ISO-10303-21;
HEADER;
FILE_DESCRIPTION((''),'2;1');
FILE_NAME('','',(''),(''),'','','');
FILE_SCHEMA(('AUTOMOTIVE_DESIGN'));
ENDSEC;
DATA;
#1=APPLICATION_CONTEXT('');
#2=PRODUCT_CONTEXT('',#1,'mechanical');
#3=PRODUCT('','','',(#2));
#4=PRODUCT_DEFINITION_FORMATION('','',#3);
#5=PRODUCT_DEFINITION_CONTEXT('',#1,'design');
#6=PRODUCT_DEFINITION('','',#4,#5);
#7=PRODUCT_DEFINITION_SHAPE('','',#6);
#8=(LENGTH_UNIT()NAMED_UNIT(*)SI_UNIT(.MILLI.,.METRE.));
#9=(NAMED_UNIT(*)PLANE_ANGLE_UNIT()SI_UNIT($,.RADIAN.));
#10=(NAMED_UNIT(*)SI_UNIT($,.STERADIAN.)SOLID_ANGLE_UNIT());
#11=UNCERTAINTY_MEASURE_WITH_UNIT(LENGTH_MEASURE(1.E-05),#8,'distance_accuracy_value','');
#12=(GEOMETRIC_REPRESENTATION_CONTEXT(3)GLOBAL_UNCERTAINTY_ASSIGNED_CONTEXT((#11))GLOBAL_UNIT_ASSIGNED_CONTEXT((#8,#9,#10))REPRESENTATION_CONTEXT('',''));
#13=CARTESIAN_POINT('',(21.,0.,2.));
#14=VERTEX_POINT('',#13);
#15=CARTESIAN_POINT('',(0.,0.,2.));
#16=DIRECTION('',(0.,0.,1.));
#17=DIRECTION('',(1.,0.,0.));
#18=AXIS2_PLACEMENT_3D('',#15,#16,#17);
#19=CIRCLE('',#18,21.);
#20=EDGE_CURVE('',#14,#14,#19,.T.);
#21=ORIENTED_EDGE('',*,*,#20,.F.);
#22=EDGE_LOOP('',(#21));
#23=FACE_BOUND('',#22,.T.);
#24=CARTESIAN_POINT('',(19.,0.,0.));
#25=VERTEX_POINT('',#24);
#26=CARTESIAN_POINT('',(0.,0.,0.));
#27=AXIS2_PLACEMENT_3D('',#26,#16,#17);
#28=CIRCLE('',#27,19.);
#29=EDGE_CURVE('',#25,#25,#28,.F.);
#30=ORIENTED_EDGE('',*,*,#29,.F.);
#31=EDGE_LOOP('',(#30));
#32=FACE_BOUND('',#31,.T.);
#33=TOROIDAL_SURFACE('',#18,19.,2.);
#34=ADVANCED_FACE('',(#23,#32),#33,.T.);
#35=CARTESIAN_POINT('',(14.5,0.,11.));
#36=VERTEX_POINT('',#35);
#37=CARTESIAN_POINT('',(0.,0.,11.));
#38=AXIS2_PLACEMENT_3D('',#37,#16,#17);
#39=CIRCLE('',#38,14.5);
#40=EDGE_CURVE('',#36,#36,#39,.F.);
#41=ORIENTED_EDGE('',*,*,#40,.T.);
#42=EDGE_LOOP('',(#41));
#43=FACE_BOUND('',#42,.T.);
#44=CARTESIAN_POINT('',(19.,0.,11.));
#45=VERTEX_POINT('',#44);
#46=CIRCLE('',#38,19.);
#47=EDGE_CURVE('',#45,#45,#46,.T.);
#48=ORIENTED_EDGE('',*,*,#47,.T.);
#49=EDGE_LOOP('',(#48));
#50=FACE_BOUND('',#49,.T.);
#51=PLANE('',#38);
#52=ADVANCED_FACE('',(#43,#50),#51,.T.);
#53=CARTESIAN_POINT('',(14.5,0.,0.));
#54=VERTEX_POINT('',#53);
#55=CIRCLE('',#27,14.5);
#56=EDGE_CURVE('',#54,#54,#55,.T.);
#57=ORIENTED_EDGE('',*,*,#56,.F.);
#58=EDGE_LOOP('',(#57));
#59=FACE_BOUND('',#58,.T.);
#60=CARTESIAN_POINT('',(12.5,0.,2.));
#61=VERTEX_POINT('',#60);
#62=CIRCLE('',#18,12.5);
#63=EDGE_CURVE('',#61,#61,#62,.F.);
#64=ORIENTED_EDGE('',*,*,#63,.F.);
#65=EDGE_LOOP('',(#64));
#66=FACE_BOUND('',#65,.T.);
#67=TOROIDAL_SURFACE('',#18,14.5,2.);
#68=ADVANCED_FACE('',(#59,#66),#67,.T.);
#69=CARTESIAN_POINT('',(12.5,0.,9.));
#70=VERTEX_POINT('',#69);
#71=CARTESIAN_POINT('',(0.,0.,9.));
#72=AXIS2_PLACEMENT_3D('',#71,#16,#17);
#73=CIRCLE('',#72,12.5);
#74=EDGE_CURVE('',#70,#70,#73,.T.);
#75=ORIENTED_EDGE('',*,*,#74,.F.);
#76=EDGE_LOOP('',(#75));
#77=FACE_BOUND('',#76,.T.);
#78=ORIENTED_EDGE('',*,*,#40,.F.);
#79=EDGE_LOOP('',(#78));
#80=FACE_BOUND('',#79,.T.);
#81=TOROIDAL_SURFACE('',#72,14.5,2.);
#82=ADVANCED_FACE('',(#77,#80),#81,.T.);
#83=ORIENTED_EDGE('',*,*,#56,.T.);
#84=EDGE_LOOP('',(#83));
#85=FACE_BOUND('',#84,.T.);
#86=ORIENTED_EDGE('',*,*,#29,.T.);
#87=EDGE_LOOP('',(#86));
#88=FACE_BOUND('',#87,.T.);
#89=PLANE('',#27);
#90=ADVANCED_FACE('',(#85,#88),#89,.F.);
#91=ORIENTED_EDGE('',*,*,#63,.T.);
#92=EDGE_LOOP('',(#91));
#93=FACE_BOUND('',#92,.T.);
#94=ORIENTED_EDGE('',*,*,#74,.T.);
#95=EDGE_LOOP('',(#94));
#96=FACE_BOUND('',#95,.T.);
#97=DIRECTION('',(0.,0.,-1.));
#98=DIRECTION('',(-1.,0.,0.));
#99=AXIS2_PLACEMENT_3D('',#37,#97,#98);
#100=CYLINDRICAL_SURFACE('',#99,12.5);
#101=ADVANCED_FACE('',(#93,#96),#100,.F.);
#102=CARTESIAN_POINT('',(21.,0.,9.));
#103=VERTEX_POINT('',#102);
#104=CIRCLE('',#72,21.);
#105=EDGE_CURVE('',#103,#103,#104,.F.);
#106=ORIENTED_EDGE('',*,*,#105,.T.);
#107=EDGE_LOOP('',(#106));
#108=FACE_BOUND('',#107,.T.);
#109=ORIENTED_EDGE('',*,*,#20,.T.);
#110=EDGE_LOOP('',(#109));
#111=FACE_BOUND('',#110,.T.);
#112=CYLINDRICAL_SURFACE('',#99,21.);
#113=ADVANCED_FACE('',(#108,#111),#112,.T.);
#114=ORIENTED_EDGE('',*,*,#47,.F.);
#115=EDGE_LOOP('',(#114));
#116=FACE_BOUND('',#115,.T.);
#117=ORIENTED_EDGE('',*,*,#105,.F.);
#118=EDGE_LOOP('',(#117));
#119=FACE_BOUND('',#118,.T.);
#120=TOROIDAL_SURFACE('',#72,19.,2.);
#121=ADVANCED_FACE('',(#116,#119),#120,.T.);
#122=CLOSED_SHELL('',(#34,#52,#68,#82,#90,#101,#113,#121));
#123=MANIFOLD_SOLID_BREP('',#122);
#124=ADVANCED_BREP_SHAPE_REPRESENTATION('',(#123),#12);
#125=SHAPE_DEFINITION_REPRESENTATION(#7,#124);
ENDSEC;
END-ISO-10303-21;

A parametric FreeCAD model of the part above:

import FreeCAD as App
import Part
import Sketcher
Q = App.Units.Quantity


def edges_at(feature, points):
    """Names of the edges that pass closest to the given points."""
    edges = feature.Shape.Edges
    near = lambda p: min(range(len(edges)), key=lambda i: edges[i].distToShape(Part.Vertex(*p))[0])
    return sorted({f"Edge{near(p) + 1}" for p in points})

doc = App.newDocument("Part")
params = doc.addObject("Spreadsheet::Sheet", "Params")
for row, (alias, value) in enumerate([
    ("sketch1_diameter", "42 mm"),
    ("sketch1_diameter2", "25 mm"),
    ("pad1_length", "11 mm"),
    ("fillet_radius", "2 mm"),
], start=1):
    params.set(f"A{row}", alias)
    params.set(f"B{row}", "=" + value)
    params.setAlias(f"B{row}", alias)

body = doc.addObject("PartDesign::Body", "Body")

sketch1 = doc.addObject("Sketcher::SketchObject", "Sketch")
body.addObject(sketch1)
sketch1.AttachmentSupport = (doc.XY_Plane, [""])
sketch1.MapMode = "FlatFace"
sketch1.addGeometry([
    Part.Circle(App.Vector(0, 0, 0), App.Vector(0, 0, 1), 21),
    Part.Circle(App.Vector(0, 0, 0), App.Vector(0, 0, 1), 12),
], False)
sketch1.addConstraint([
    Sketcher.Constraint("Coincident", 0, 3, -1, 1),
    Sketcher.Constraint("Coincident", 1, 3, -1, 1),
    Sketcher.Constraint("Diameter", 0, Q("42 mm")),
    Sketcher.Constraint("Diameter", 1, Q("25 mm")),
])
sketch1.setExpression("Constraints[2]", "Params.sketch1_diameter")
sketch1.setExpression("Constraints[3]", "Params.sketch1_diameter2")
pad1 = doc.addObject("PartDesign::Pad", "Pad")
body.addObject(pad1)
pad1.Profile = sketch1
pad1.setExpression("Length", "Params.pad1_length")
doc.recompute()

fillet = doc.addObject("PartDesign::Fillet", "Fillet")
body.addObject(fillet)
fillet.Base = (pad1, edges_at(pad1, [
    (-21, 0, 0),
    (-21, 0, 11),
    (-12.5, 0, 0),
    (-12.5, 0, 11),
]))
fillet.setExpression("Radius", "Params.fillet_radius")

doc.recompute()
